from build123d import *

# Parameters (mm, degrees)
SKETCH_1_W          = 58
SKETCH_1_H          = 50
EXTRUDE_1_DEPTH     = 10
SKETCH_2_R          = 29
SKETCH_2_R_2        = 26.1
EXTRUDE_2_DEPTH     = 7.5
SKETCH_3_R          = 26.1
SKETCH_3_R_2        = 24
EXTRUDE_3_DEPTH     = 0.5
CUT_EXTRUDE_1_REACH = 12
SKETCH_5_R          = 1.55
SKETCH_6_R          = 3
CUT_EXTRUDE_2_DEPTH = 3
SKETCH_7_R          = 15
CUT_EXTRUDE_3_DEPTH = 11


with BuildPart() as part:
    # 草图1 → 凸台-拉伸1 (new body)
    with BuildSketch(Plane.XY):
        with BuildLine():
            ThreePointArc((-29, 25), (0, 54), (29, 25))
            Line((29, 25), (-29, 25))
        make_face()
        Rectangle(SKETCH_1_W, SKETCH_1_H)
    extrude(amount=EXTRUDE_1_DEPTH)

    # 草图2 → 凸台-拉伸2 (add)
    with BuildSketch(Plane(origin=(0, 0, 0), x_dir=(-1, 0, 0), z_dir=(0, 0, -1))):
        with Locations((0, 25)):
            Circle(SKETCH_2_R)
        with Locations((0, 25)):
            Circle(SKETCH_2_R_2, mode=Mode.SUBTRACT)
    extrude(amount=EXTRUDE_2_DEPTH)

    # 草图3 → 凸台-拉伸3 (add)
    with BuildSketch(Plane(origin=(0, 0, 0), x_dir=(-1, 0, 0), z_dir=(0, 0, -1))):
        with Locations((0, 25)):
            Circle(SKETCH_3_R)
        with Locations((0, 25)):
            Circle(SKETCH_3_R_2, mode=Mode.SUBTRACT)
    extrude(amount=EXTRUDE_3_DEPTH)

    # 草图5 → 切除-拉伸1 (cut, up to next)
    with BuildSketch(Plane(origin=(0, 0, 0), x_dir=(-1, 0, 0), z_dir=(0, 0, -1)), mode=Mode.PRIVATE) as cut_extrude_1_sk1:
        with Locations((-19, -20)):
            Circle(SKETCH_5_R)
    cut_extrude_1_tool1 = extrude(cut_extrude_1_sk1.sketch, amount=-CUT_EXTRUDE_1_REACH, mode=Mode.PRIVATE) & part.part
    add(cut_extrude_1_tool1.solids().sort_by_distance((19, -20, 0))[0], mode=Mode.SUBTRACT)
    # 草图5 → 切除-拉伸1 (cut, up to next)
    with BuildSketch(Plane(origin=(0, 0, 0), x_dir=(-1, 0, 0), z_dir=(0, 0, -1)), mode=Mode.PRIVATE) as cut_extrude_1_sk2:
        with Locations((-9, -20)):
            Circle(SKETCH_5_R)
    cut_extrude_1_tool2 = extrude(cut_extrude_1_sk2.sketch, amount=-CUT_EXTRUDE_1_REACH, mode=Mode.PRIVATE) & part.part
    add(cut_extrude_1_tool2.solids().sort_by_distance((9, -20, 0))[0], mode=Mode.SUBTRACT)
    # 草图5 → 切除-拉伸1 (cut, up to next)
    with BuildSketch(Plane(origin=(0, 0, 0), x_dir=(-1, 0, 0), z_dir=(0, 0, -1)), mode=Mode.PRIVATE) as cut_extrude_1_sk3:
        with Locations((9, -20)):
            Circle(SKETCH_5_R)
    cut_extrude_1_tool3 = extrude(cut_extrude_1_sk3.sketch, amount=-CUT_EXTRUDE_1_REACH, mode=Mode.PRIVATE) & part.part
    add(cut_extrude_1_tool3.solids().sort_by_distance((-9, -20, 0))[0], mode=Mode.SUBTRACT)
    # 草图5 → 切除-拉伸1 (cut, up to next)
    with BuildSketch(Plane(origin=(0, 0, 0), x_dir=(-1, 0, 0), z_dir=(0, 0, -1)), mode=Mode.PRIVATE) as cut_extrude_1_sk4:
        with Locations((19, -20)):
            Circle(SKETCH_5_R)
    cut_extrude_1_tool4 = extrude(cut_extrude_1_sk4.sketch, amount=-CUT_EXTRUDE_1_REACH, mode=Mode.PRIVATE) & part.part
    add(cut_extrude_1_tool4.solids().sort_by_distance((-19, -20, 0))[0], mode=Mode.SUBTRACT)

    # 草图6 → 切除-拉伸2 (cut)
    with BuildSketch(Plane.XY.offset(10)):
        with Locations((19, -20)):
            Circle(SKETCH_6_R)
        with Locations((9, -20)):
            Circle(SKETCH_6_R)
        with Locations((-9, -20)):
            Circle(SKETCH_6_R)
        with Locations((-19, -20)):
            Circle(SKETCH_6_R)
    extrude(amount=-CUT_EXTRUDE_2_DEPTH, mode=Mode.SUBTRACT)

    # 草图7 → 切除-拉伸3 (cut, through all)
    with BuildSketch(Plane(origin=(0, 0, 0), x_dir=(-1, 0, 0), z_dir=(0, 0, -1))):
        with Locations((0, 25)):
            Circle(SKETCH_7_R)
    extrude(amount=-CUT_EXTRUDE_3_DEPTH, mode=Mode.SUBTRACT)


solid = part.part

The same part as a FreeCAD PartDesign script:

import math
import FreeCAD as App
import Part
import Sketcher

V = App.Vector

doc = App.newDocument("Part")
body = doc.addObject("PartDesign::Body", "Body")

# Sketch on XY plane
sketch1 = body.newObject("Sketcher::SketchObject", "Sketch")
sketch1.AttachmentSupport = (doc.getObject("XY_Plane"), [""])
sketch1.MapMode = "FlatFace"
sketch1.addGeometry([
    Part.ArcOfCircle(Part.Circle(V(0, 25, 0), V(0, 0, 1), 29), math.radians(0), math.radians(180)),
    Part.LineSegment(V(-29, 25, 0), V(-29, -25, 0)),
    Part.LineSegment(V(-29, -25, 0), V(29, -25, 0)),
    Part.LineSegment(V(29, -25, 0), V(29, 25, 0)),
], False)
sketch1.addConstraint([
    Sketcher.Constraint("Tangent", 0, 2, 1, 1),
    Sketcher.Constraint("Coincident", 1, 2, 2, 1),
    Sketcher.Constraint("Coincident", 2, 2, 3, 1),
    Sketcher.Constraint("Tangent", 3, 2, 0, 1),
    Sketcher.Constraint("Vertical", 1),
    Sketcher.Constraint("Horizontal", 2),
    Sketcher.Constraint("Vertical", 3),
    Sketcher.Constraint("Symmetric", 0, 2, 2, 2, -1, 1),
    Sketcher.Constraint("Radius", 0, 29.0),
    Sketcher.Constraint("DistanceY", 1, 2, 1, 1, 50.0),
])
pad1 = body.newObject("PartDesign::Pad", "Pad")
pad1.Profile = sketch1
pad1.Length = 10

# Sketch on XY plane
sketch2 = body.newObject("Sketcher::SketchObject", "Sketch001")
sketch2.AttachmentSupport = (doc.getObject("XY_Plane"), [""])
sketch2.MapMode = "FlatFace"
sketch2.addGeometry([
    Part.Circle(V(0, 25, 0), V(0, 0, 1), 29),
    Part.Circle(V(0, 25, 0), V(0, 0, 1), 26.1),
], False)
sketch2.addConstraint([
    Sketcher.Constraint("Coincident", 1, 3, 0, 3),
    Sketcher.Constraint("PointOnObject", 0, 3, -2),
    Sketcher.Constraint("Diameter", 0, 58.0),
    Sketcher.Constraint("Diameter", 1, 52.2),
    Sketcher.Constraint("DistanceY", -1, 1, 0, 3, 25.0),
])
pad2 = body.newObject("PartDesign::Pad", "Pad001")
pad2.Profile = sketch2
pad2.Length = 7.5
pad2.Reversed = True

# Sketch on XY plane
sketch3 = body.newObject("Sketcher::SketchObject", "Sketch002")
sketch3.AttachmentSupport = (doc.getObject("XY_Plane"), [""])
sketch3.MapMode = "FlatFace"
sketch3.addGeometry([
    Part.Circle(V(0, 25, 0), V(0, 0, 1), 26.1),
    Part.Circle(V(0, 25, 0), V(0, 0, 1), 24),
], False)
sketch3.addConstraint([
    Sketcher.Constraint("Coincident", 1, 3, 0, 3),
    Sketcher.Constraint("PointOnObject", 0, 3, -2),
    Sketcher.Constraint("Diameter", 1, 48.0),
    Sketcher.Constraint("Diameter", 0, 52.2),
    Sketcher.Constraint("DistanceY", -1, 1, 0, 3, 25.0),
])
pad3 = body.newObject("PartDesign::Pad", "Pad002")
pad3.Profile = sketch3
pad3.Length = 0.5
pad3.Reversed = True

# Sketch on XY plane
sketch4 = body.newObject("Sketcher::SketchObject", "Sketch003")
sketch4.AttachmentSupport = (doc.getObject("XY_Plane"), [""])
sketch4.MapMode = "FlatFace"
sketch4.addGeometry(Part.Circle(V(19, -20, 0), V(0, 0, 1), 1.55), False)
sketch4.addConstraint([
    Sketcher.Constraint("Diameter", 0, 3.1),
    Sketcher.Constraint("DistanceX", -1, 1, 0, 3, 19.0),
    Sketcher.Constraint("DistanceY", 0, 3, -1, 1, 20.0),
])
pocket1 = body.newObject("PartDesign::Pocket", "Pocket")
pocket1.Profile = sketch4
pocket1.Type = "UpToFirst"
pocket1.Reversed = True

# Sketch on XY plane
sketch5 = body.newObject("Sketcher::SketchObject", "Sketch004")
sketch5.AttachmentSupport = (doc.getObject("XY_Plane"), [""])
sketch5.MapMode = "FlatFace"
sketch5.addGeometry(Part.Circle(V(9, -20, 0), V(0, 0, 1), 1.55), False)
sketch5.addConstraint([
    Sketcher.Constraint("Diameter", 0, 3.1),
    Sketcher.Constraint("DistanceX", -1, 1, 0, 3, 9.0),
    Sketcher.Constraint("DistanceY", 0, 3, -1, 1, 20.0),
])
pocket2 = body.newObject("PartDesign::Pocket", "Pocket001")
pocket2.Profile = sketch5
pocket2.Type = "UpToFirst"
pocket2.Reversed = True

# Sketch on XY plane
sketch6 = body.newObject("Sketcher::SketchObject", "Sketch005")
sketch6.AttachmentSupport = (doc.getObject("XY_Plane"), [""])
sketch6.MapMode = "FlatFace"
sketch6.addGeometry(Part.Circle(V(-9, -20, 0), V(0, 0, 1), 1.55), False)
sketch6.addConstraint([
    Sketcher.Constraint("Diameter", 0, 3.1),
    Sketcher.Constraint("DistanceX", 0, 3, -1, 1, 9.0),
    Sketcher.Constraint("DistanceY", 0, 3, -1, 1, 20.0),
])
pocket3 = body.newObject("PartDesign::Pocket", "Pocket002")
pocket3.Profile = sketch6
pocket3.Type = "UpToFirst"
pocket3.Reversed = True

# Sketch on XY plane
sketch7 = body.newObject("Sketcher::SketchObject", "Sketch006")
sketch7.AttachmentSupport = (doc.getObject("XY_Plane"), [""])
sketch7.MapMode = "FlatFace"
sketch7.addGeometry(Part.Circle(V(-19, -20, 0), V(0, 0, 1), 1.55), False)
sketch7.addConstraint([
    Sketcher.Constraint("Diameter", 0, 3.1),
    Sketcher.Constraint("DistanceX", 0, 3, -1, 1, 19.0),
    Sketcher.Constraint("DistanceY", 0, 3, -1, 1, 20.0),
])
pocket4 = body.newObject("PartDesign::Pocket", "Pocket003")
pocket4.Profile = sketch7
pocket4.Type = "UpToFirst"
pocket4.Reversed = True

# Sketch on XY plane
sketch8 = body.newObject("Sketcher::SketchObject", "Sketch007")
sketch8.AttachmentSupport = (doc.getObject("XY_Plane"), [""])
sketch8.MapMode = "FlatFace"
sketch8.AttachmentOffset = App.Placement(V(0, 0, 10), App.Rotation())
sketch8.addGeometry([
    Part.Circle(V(19, -20, 0), V(0, 0, 1), 3),
    Part.Circle(V(9, -20, 0), V(0, 0, 1), 3),
    Part.Circle(V(-9, -20, 0), V(0, 0, 1), 3),
    Part.Circle(V(-19, -20, 0), V(0, 0, 1), 3),
], False)
sketch8.addConstraint([
    Sketcher.Constraint("Equal", 0, 1),
    Sketcher.Constraint("Equal", 1, 2),
    Sketcher.Constraint("Equal", 2, 3),
    Sketcher.Constraint("Symmetric", 1, 3, 2, 3, -2),
    Sketcher.Constraint("Symmetric", 0, 3, 3, 3, -2),
    Sketcher.Constraint("Horizontal", 0, 3, 1, 3),
    Sketcher.Constraint("Diameter", 0, 6.0),
    Sketcher.Constraint("DistanceX", -1, 1, 0, 3, 19.0),
    Sketcher.Constraint("DistanceY", 0, 3, -1, 1, 20.0),
    Sketcher.Constraint("DistanceX", -1, 1, 1, 3, 9.0),
])
pocket5 = body.newObject("PartDesign::Pocket", "Pocket004")
pocket5.Profile = sketch8
pocket5.Length = 3

# Sketch on XY plane
sketch9 = body.newObject("Sketcher::SketchObject", "Sketch008")
sketch9.AttachmentSupport = (doc.getObject("XY_Plane"), [""])
sketch9.MapMode = "FlatFace"
sketch9.addGeometry(Part.Circle(V(0, 25, 0), V(0, 0, 1), 15), False)
sketch9.addConstraint([
    Sketcher.Constraint("PointOnObject", 0, 3, -2),
    Sketcher.Constraint("Diameter", 0, 30.0),
    Sketcher.Constraint("DistanceY", -1, 1, 0, 3, 25.0),
])
pocket6 = body.newObject("PartDesign::Pocket", "Pocket005")
pocket6.Profile = sketch9
pocket6.Type = "ThroughAll"
pocket6.Reversed = True

doc.recompute()
